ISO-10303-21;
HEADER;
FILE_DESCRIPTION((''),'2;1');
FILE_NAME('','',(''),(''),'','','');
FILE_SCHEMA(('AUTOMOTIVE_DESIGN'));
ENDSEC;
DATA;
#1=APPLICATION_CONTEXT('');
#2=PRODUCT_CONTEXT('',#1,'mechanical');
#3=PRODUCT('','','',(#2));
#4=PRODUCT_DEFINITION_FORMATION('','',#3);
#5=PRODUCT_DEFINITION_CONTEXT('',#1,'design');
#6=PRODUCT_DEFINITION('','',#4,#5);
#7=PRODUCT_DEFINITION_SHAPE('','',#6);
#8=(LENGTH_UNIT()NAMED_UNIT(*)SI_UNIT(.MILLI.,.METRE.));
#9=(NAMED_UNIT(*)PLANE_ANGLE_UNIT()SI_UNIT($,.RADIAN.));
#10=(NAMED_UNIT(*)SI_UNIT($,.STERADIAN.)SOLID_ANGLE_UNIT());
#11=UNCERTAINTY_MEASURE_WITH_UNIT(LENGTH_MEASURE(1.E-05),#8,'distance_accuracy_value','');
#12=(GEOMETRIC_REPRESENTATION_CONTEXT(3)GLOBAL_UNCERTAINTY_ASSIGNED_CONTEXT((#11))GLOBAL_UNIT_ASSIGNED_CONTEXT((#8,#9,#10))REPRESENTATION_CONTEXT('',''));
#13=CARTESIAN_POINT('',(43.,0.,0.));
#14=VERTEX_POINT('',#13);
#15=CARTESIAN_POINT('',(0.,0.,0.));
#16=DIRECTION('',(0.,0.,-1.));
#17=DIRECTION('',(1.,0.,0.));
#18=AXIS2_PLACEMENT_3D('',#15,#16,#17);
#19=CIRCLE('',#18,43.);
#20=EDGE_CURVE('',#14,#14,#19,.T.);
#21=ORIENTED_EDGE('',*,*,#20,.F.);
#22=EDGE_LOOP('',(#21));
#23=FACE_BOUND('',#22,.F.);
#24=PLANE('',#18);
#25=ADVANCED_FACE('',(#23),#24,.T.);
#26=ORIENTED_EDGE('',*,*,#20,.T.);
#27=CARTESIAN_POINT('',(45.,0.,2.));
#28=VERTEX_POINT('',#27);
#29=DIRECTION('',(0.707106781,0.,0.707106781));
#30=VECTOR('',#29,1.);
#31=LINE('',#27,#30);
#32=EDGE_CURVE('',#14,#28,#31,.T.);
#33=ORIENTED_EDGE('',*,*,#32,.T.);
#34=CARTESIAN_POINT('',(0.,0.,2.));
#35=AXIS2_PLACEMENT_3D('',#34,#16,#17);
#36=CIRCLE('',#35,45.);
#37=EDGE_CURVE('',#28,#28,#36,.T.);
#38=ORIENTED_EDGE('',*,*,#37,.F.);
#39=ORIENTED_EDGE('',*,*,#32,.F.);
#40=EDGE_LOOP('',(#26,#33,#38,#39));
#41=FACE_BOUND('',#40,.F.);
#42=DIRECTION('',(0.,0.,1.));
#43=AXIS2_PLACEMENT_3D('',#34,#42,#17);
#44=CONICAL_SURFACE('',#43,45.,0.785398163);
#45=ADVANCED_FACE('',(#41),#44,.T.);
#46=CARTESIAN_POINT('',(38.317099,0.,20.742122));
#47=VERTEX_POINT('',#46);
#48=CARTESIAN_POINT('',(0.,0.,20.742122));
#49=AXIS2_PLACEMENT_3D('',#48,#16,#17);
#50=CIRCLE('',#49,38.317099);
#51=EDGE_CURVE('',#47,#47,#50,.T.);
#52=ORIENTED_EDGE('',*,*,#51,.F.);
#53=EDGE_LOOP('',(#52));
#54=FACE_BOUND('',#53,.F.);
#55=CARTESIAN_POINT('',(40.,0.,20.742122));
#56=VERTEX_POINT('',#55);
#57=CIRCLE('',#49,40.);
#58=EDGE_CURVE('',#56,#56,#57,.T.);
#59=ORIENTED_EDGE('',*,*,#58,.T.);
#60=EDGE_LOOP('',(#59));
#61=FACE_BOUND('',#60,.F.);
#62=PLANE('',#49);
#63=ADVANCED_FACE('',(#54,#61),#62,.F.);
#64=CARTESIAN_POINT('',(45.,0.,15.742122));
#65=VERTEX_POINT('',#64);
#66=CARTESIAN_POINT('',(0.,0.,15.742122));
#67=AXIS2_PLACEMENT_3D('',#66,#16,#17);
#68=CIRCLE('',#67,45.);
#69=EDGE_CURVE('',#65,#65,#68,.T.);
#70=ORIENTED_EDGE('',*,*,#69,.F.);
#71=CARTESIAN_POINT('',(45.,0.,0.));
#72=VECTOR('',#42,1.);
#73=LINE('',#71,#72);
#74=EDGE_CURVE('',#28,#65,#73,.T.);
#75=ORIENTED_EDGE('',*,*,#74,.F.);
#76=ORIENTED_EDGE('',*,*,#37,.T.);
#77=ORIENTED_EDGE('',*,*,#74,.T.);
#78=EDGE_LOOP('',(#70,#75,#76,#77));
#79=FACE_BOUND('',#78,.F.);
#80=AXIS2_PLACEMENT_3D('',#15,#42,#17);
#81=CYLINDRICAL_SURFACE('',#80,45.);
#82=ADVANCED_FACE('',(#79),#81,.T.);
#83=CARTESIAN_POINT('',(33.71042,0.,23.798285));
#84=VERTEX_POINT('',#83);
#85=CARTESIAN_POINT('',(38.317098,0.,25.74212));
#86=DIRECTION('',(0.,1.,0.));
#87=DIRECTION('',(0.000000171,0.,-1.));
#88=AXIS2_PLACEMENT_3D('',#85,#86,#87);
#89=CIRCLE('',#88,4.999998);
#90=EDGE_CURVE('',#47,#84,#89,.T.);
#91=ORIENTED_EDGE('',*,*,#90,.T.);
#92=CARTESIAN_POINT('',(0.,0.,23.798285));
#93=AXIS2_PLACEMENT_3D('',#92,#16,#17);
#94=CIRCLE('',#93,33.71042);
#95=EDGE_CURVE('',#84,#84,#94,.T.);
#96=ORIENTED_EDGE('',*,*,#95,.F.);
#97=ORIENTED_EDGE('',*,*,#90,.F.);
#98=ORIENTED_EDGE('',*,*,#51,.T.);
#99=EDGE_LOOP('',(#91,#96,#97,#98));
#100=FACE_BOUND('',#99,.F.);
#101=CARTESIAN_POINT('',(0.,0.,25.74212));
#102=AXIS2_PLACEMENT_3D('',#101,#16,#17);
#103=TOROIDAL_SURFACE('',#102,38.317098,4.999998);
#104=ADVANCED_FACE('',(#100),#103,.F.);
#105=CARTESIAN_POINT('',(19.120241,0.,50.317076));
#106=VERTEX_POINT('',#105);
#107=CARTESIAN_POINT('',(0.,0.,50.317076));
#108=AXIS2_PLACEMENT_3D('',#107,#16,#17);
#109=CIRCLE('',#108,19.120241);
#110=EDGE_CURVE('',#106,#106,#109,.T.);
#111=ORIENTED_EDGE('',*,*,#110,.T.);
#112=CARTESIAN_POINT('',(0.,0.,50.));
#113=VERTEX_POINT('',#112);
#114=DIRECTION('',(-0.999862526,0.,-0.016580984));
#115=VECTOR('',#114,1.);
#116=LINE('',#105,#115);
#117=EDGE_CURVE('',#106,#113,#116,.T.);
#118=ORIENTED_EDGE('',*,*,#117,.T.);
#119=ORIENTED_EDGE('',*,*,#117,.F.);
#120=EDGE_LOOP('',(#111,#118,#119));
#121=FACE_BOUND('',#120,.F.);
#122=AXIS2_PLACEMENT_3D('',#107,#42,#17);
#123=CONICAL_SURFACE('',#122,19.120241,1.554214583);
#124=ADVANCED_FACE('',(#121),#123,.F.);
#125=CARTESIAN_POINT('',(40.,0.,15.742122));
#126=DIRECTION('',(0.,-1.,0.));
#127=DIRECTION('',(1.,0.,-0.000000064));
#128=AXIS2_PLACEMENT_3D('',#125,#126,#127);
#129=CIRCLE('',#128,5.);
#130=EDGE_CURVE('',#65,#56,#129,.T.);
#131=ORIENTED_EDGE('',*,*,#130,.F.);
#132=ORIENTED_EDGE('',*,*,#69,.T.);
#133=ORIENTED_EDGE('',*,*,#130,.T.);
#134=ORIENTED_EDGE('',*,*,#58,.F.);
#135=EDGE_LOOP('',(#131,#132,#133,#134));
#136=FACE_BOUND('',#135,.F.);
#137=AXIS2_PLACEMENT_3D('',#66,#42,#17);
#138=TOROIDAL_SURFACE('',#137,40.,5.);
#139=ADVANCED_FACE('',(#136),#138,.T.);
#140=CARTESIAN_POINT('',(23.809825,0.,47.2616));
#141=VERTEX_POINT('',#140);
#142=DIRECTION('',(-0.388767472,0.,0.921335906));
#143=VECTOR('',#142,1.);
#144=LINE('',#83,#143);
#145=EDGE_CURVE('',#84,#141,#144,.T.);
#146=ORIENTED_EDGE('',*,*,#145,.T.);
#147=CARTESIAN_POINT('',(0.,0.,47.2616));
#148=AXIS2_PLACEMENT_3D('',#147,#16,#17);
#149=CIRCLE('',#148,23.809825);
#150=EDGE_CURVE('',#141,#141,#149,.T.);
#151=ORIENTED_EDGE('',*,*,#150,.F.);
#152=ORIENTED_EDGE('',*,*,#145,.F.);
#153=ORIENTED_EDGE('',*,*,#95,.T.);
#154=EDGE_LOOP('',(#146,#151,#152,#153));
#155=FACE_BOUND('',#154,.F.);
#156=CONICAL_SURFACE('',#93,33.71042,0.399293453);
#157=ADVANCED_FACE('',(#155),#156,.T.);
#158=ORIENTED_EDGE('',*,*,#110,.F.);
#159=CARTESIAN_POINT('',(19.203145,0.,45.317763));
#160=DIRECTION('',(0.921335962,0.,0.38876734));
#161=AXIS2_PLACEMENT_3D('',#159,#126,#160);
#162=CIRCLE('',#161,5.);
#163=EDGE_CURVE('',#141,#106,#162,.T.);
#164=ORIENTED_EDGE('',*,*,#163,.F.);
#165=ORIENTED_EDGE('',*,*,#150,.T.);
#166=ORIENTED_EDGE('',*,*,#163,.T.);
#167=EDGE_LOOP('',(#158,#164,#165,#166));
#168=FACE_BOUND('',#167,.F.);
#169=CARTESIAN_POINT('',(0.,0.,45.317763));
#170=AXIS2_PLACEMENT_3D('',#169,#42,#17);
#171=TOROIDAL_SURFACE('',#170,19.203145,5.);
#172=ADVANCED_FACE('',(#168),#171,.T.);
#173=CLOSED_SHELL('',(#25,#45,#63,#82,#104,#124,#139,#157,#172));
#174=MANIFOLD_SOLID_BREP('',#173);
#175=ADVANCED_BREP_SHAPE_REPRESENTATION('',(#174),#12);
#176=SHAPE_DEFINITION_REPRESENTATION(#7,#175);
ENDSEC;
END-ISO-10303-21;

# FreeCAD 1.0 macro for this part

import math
import FreeCAD as App
import Part
import Sketcher
from FreeCAD import Vector
Q = App.Units.Quantity


def edges_at(feature, points):
    """Names of the edges that pass closest to the given points."""
    edges = feature.Shape.Edges
    near = lambda p: min(range(len(edges)), key=lambda i: edges[i].distToShape(Part.Vertex(*p))[0])
    return sorted({f"Edge{near(p) + 1}" for p in points})

doc = App.newDocument("Part")
body = doc.addObject("PartDesign::Body", "Body")

sketch1 = body.newObject("Sketcher::SketchObject", "Sketch")
sketch1.AttachmentSupport = (doc.getObject("XZ_Plane"), [""])
sketch1.MapMode = "FlatFace"
sketch1.addGeometry([
    Part.LineSegment(Vector(19.120241, 50.317076, 0), Vector(0, 50, 0)),
    Part.LineSegment(Vector(0, 50, 0), Vector(0, 0, 0)),
    Part.LineSegment(Vector(0, 0, 0), Vector(45, 0, 0)),
    Part.LineSegment(Vector(45, 0, 0), Vector(45, 15.742122, 0)),
    Part.ArcOfCircle(Part.Circle(Vector(40, 15.742122, 0), Vector(0, 0, 1), 5), math.radians(-0.000004), math.radians(90.000004)),
    Part.LineSegment(Vector(40, 20.742122, 0), Vector(38.317099, 20.742122, 0)),
    Part.ArcOfCircle(Part.Circle(Vector(38.317098, 25.74212, 0), Vector(0, 0, 1), 4.999998), math.radians(-157.122192), math.radians(-89.99999)),
    Part.LineSegment(Vector(33.71042, 23.798285, 0), Vector(23.809825, 47.2616, 0)),
    Part.ArcOfCircle(Part.Circle(Vector(19.203145, 45.317763, 0), Vector(0, 0, 1), 5), math.radians(22.877821), math.radians(90.950055)),
], False)
sketch1.addConstraint([
    Sketcher.Constraint("Coincident", 0, 2, 1, 1),
    Sketcher.Constraint("Coincident", 1, 2, 2, 1),
    Sketcher.Constraint("Coincident", 2, 2, 3, 1),
    Sketcher.Constraint("Tangent", 3, 2, 4, 1),
    Sketcher.Constraint("Tangent", 4, 2, 5, 1),
    Sketcher.Constraint("Tangent", 5, 2, 6, 2),
    Sketcher.Constraint("Tangent", 6, 1, 7, 1),
    Sketcher.Constraint("Tangent", 7, 2, 8, 1),
    Sketcher.Constraint("Tangent", 8, 2, 0, 1),
    Sketcher.Constraint("Vertical", 1),
    Sketcher.Constraint("Horizontal", 2),
    Sketcher.Constraint("Vertical", 3),
    Sketcher.Constraint("Horizontal", 5),
    Sketcher.Constraint("Coincident", 1, 2, -1, 1),
    Sketcher.Constraint("Equal", 4, 6),
    Sketcher.Constraint("Equal", 4, 8),
    Sketcher.Constraint("Radius", 4, Q("5 mm")),
    Sketcher.Constraint("DistanceX", 2, 1, 2, 2, Q("45 mm")),
    Sketcher.Constraint("DistanceY", 1, 2, 1, 1, Q("50 mm")),
    Sketcher.Constraint("DistanceX", 5, 2, 5, 1, Q("1.682901 mm")),
    Sketcher.Constraint("DistanceY", -1, 1, 7, 2, Q("47.2616 mm")),
    Sketcher.Constraint("Distance", 0, Q("19.12287 mm")),
    Sketcher.Constraint("DistanceY", 3, 1, 3, 2, Q("15.742122 mm")),
])
revolution = body.newObject("PartDesign::Revolution", "Revolution")
revolution.Profile = sketch1
revolution.ReferenceAxis = (sketch1, ["V_Axis"])
revolution.Angle = 360
doc.recompute()

chamfer = body.newObject("PartDesign::Chamfer", "Chamfer")
chamfer.Base = (revolution, edges_at(revolution, [(-45, 0, 0)]))
chamfer.Size = 2

doc.recompute()
